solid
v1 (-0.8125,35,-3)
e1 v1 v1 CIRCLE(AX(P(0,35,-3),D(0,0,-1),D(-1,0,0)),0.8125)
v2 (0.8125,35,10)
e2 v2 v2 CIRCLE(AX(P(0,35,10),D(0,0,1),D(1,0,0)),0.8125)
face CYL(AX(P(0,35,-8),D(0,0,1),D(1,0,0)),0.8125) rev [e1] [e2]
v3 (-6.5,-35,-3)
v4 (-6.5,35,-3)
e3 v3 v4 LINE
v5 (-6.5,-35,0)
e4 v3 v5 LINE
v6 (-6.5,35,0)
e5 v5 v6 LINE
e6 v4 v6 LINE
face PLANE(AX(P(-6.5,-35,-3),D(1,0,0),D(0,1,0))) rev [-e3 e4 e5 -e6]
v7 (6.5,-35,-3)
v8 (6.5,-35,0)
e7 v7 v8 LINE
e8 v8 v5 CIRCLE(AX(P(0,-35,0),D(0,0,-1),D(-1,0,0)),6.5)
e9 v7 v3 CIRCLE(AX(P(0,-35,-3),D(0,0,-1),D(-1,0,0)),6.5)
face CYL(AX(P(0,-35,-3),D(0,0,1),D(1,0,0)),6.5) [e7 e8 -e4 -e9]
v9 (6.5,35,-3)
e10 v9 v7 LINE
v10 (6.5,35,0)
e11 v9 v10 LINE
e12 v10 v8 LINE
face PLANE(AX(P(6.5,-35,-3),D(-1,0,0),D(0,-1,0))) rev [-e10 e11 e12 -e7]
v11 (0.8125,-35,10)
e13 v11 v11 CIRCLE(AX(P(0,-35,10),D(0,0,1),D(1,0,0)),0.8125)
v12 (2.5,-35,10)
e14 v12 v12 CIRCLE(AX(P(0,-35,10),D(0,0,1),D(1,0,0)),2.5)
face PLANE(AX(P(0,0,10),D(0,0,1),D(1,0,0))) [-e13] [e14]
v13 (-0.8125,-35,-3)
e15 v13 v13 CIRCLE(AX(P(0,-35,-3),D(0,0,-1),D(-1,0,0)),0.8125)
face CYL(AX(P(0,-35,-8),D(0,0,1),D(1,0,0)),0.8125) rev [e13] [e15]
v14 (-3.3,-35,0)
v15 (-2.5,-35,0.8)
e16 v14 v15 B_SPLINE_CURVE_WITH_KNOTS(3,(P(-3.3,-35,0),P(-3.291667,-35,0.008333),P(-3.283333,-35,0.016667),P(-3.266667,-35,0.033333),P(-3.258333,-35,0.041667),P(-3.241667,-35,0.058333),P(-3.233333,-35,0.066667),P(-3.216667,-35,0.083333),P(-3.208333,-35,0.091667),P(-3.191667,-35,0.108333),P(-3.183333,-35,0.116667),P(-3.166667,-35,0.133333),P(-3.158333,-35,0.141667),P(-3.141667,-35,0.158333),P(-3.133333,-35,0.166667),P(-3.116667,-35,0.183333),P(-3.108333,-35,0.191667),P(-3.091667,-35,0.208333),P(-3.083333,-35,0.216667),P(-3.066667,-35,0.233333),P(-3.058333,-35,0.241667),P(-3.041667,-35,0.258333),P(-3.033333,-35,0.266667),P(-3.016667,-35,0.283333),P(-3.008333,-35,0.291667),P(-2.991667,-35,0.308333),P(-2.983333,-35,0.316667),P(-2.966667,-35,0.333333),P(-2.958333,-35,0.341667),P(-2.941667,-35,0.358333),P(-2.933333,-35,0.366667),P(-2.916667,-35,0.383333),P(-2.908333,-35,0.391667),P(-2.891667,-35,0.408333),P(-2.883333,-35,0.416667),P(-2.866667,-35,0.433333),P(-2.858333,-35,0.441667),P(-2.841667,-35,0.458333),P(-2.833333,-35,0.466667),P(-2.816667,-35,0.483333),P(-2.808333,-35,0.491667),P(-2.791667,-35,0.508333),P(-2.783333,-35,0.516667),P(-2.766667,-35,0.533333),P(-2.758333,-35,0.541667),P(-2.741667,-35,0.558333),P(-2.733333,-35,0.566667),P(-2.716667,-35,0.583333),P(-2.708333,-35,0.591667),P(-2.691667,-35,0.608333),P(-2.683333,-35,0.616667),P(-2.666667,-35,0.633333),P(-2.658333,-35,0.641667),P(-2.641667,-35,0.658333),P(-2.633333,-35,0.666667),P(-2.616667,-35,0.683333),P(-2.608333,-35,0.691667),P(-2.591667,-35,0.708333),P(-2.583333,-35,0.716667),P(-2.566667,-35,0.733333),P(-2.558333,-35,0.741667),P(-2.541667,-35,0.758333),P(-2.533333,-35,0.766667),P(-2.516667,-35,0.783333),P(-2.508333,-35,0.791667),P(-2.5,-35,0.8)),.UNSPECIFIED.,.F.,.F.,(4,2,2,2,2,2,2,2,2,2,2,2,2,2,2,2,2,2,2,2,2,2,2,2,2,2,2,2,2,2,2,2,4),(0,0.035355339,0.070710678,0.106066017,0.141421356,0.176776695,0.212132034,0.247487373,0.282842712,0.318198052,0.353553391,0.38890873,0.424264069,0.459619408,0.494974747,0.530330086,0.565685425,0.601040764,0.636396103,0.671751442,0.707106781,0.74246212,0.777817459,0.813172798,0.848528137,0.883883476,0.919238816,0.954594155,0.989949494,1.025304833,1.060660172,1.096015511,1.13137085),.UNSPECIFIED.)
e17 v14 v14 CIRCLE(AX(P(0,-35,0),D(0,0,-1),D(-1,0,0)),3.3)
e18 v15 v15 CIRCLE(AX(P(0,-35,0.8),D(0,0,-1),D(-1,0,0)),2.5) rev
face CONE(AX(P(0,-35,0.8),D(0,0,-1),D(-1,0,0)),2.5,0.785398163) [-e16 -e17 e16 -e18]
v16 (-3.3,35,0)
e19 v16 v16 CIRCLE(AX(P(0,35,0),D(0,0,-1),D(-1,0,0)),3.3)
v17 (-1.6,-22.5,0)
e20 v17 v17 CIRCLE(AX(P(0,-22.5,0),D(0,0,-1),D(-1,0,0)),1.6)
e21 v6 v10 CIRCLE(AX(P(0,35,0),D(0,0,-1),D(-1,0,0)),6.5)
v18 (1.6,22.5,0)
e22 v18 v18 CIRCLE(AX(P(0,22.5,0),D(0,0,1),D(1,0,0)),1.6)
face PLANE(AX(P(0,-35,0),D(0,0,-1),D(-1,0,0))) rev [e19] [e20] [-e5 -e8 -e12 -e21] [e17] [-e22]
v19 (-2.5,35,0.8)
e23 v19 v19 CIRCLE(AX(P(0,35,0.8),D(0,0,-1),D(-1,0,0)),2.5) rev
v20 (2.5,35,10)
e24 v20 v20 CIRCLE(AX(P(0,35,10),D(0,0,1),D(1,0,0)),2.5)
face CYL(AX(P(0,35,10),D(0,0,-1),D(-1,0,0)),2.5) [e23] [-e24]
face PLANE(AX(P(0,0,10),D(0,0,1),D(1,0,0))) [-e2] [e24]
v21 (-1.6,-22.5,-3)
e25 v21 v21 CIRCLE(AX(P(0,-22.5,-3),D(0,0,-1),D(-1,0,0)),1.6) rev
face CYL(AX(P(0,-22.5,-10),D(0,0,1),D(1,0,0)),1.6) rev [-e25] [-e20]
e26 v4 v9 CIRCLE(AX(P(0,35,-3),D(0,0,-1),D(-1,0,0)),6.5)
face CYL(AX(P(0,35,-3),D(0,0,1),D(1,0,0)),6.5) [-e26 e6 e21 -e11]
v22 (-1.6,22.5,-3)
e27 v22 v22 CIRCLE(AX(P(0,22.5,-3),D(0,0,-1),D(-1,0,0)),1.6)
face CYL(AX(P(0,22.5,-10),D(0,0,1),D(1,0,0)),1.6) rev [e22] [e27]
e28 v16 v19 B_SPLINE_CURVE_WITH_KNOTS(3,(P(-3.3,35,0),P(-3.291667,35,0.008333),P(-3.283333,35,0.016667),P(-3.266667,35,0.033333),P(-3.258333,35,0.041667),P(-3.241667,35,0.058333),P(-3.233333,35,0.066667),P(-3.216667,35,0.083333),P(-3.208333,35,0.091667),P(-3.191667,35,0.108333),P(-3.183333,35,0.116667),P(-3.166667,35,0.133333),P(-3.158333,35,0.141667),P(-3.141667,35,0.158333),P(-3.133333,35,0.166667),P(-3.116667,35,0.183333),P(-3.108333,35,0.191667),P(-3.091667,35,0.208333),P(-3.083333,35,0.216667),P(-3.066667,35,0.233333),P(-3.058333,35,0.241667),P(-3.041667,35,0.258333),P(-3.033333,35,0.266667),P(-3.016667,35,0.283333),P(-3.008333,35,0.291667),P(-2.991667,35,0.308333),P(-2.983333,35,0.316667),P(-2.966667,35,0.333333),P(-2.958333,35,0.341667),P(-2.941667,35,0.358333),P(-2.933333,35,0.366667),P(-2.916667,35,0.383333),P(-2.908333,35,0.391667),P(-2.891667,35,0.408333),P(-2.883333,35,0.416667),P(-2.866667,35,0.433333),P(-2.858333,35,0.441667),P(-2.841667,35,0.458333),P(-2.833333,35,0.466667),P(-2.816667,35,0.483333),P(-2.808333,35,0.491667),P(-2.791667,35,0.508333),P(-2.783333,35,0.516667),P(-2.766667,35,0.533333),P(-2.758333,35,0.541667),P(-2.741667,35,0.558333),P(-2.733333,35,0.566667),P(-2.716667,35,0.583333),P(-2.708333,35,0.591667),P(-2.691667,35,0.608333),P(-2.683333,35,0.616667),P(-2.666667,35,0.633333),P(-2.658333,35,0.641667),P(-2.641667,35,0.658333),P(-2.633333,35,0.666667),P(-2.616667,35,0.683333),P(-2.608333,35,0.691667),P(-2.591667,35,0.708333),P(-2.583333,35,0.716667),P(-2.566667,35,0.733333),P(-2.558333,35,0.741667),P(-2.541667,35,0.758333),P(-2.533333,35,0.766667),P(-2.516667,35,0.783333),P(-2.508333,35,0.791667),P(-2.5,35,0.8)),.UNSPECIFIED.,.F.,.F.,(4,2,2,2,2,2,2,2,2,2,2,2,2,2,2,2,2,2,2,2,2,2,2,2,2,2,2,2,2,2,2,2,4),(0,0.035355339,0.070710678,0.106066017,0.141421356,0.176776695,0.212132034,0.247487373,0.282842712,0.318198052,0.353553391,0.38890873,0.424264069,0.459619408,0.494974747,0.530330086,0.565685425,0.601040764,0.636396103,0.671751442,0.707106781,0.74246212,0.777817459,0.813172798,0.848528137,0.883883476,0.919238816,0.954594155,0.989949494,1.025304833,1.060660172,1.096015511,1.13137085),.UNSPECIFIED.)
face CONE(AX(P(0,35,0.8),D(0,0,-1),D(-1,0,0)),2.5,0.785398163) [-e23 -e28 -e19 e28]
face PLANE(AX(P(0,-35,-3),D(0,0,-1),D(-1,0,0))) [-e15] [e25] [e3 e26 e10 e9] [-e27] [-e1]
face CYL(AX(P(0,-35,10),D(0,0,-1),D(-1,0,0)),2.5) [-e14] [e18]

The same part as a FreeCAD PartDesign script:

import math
import FreeCAD as App
import Part
import Sketcher

V = App.Vector


def edges_at(feature, points):
    """Names of the edges that pass closest to the given points."""
    edges = feature.Shape.Edges
    near = lambda p: min(range(len(edges)), key=lambda i: edges[i].distToShape(Part.Vertex(*p))[0])
    return sorted({f"Edge{near(p) + 1}" for p in points})

doc = App.newDocument("Part")
body = doc.addObject("PartDesign::Body", "Body")

# Sketch on XY plane
sketch1 = body.newObject("Sketcher::SketchObject", "Sketch")
sketch1.AttachmentSupport = (doc.getObject("XY_Plane"), [""])
sketch1.MapMode = "FlatFace"
sketch1.addGeometry(Part.Circle(V(0, -35, 0), V(0, 0, 1), 2.5), False)
sketch1.addConstraint([
    Sketcher.Constraint("PointOnObject", 0, 3, -2),
    Sketcher.Constraint("Diameter", 0, 5.0),
    Sketcher.Constraint("DistanceY", 0, 3, -1, 1, 35.0),
])
pad1 = body.newObject("PartDesign::Pad", "Pad")
pad1.Profile = sketch1
pad1.Length = 10
body2 = doc.addObject("PartDesign::Body", "Body001")

# Sketch on XY plane
sketch2 = body2.newObject("Sketcher::SketchObject", "Sketch001")
sketch2.AttachmentSupport = (doc.getObject("XY_Plane001"), [""])
sketch2.MapMode = "FlatFace"
sketch2.addGeometry(Part.Circle(V(0, 35, 0), V(0, 0, 1), 2.5), False)
sketch2.addConstraint([
    Sketcher.Constraint("PointOnObject", 0, 3, -2),
    Sketcher.Constraint("Diameter", 0, 5.0),
    Sketcher.Constraint("DistanceY", -1, 1, 0, 3, 35.0),
])
pad2 = body2.newObject("PartDesign::Pad", "Pad001")
pad2.Profile = sketch2
pad2.Length = 10
body.AllowCompound = True
doc.recompute()

boolean = body.newObject("PartDesign::Boolean", "Boolean")
boolean.Type = "Fuse"
boolean.addObjects([body2])

# Sketch on XY plane
sketch3 = body.newObject("Sketcher::SketchObject", "Sketch002")
sketch3.AttachmentSupport = (doc.getObject("XY_Plane"), [""])
sketch3.MapMode = "FlatFace"
sketch3.addGeometry([
    Part.LineSegment(V(6.5, 35, 0), V(6.5, -35, 0)),
    Part.ArcOfCircle(Part.Circle(V(0, -35, 0), V(0, 0, 1), 6.5), math.radians(180), math.radians(360)),
    Part.LineSegment(V(-6.5, -35, 0), V(-6.5, 35, 0)),
    Part.ArcOfCircle(Part.Circle(V(0, 35, 0), V(0, 0, 1), 6.5), math.radians(0), math.radians(180)),
], False)
sketch3.addConstraint([
    Sketcher.Constraint("Tangent", 0, 2, 1, 2),
    Sketcher.Constraint("Tangent", 1, 1, 2, 1),
    Sketcher.Constraint("Tangent", 2, 2, 3, 2),
    Sketcher.Constraint("Tangent", 3, 1, 0, 1),
    Sketcher.Constraint("Vertical", 0),
    Sketcher.Constraint("Vertical", 2),
    Sketcher.Constraint("Symmetric", 1, 3, 3, 3, -1, 1),
    Sketcher.Constraint("Radius", 1, 6.5),
    Sketcher.Constraint("DistanceY", 0, 2, 0, 1, 70.0),
])
pad3 = body.newObject("PartDesign::Pad", "Pad002")
pad3.Profile = sketch3
pad3.Length = 3
pad3.Reversed = True

# Sketch on XY plane
sketch4 = body.newObject("Sketcher::SketchObject", "Sketch003")
sketch4.AttachmentSupport = (doc.getObject("XY_Plane"), [""])
sketch4.MapMode = "FlatFace"
sketch4.AttachmentOffset = App.Placement(V(0, 0, 10), App.Rotation())
sketch4.addGeometry([
    Part.Circle(V(0, -35, 0), V(0, 0, 1), 0.8125),
    Part.Circle(V(0, 35, 0), V(0, 0, 1), 0.8125),
], False)
sketch4.addConstraint([
    Sketcher.Constraint("Equal", 0, 1),
    Sketcher.Constraint("Symmetric", 0, 3, 1, 3, -1, 1),
    Sketcher.Constraint("PointOnObject", 0, 3, -2),
    Sketcher.Constraint("Diameter", 0, 1.625),
    Sketcher.Constraint("DistanceY", 0, 3, -1, 1, 35.0),
])
pocket1 = body.newObject("PartDesign::Pocket", "Pocket")
pocket1.Profile = sketch4
pocket1.Length = 18
doc.recompute()

chamfer = body.newObject("PartDesign::Chamfer", "Chamfer")
chamfer.Base = (pocket1, edges_at(pocket1, [(0, 32.5, 0), (0, -37.5, 0)]))
chamfer.Size = 0.8

# Sketch on XY plane
sketch5 = body.newObject("Sketcher::SketchObject", "Sketch004")
sketch5.AttachmentSupport = (doc.getObject("XY_Plane"), [""])
sketch5.MapMode = "FlatFace"
sketch5.addGeometry([
    Part.Circle(V(0, 22.5, 0), V(0, 0, 1), 1.6),
    Part.Circle(V(0, -22.5, 0), V(0, 0, 1), 1.6),
], False)
sketch5.addConstraint([
    Sketcher.Constraint("Equal", 0, 1),
    Sketcher.Constraint("Symmetric", 0, 3, 1, 3, -1, 1),
    Sketcher.Constraint("PointOnObject", 0, 3, -2),
    Sketcher.Constraint("Diameter", 0, 3.2),
    Sketcher.Constraint("DistanceY", 1, 3, 0, 3, 45.0),
])
pocket2 = body.newObject("PartDesign::Pocket", "Pocket001")
pocket2.Profile = sketch5
pocket2.Length = 10

doc.recompute()
